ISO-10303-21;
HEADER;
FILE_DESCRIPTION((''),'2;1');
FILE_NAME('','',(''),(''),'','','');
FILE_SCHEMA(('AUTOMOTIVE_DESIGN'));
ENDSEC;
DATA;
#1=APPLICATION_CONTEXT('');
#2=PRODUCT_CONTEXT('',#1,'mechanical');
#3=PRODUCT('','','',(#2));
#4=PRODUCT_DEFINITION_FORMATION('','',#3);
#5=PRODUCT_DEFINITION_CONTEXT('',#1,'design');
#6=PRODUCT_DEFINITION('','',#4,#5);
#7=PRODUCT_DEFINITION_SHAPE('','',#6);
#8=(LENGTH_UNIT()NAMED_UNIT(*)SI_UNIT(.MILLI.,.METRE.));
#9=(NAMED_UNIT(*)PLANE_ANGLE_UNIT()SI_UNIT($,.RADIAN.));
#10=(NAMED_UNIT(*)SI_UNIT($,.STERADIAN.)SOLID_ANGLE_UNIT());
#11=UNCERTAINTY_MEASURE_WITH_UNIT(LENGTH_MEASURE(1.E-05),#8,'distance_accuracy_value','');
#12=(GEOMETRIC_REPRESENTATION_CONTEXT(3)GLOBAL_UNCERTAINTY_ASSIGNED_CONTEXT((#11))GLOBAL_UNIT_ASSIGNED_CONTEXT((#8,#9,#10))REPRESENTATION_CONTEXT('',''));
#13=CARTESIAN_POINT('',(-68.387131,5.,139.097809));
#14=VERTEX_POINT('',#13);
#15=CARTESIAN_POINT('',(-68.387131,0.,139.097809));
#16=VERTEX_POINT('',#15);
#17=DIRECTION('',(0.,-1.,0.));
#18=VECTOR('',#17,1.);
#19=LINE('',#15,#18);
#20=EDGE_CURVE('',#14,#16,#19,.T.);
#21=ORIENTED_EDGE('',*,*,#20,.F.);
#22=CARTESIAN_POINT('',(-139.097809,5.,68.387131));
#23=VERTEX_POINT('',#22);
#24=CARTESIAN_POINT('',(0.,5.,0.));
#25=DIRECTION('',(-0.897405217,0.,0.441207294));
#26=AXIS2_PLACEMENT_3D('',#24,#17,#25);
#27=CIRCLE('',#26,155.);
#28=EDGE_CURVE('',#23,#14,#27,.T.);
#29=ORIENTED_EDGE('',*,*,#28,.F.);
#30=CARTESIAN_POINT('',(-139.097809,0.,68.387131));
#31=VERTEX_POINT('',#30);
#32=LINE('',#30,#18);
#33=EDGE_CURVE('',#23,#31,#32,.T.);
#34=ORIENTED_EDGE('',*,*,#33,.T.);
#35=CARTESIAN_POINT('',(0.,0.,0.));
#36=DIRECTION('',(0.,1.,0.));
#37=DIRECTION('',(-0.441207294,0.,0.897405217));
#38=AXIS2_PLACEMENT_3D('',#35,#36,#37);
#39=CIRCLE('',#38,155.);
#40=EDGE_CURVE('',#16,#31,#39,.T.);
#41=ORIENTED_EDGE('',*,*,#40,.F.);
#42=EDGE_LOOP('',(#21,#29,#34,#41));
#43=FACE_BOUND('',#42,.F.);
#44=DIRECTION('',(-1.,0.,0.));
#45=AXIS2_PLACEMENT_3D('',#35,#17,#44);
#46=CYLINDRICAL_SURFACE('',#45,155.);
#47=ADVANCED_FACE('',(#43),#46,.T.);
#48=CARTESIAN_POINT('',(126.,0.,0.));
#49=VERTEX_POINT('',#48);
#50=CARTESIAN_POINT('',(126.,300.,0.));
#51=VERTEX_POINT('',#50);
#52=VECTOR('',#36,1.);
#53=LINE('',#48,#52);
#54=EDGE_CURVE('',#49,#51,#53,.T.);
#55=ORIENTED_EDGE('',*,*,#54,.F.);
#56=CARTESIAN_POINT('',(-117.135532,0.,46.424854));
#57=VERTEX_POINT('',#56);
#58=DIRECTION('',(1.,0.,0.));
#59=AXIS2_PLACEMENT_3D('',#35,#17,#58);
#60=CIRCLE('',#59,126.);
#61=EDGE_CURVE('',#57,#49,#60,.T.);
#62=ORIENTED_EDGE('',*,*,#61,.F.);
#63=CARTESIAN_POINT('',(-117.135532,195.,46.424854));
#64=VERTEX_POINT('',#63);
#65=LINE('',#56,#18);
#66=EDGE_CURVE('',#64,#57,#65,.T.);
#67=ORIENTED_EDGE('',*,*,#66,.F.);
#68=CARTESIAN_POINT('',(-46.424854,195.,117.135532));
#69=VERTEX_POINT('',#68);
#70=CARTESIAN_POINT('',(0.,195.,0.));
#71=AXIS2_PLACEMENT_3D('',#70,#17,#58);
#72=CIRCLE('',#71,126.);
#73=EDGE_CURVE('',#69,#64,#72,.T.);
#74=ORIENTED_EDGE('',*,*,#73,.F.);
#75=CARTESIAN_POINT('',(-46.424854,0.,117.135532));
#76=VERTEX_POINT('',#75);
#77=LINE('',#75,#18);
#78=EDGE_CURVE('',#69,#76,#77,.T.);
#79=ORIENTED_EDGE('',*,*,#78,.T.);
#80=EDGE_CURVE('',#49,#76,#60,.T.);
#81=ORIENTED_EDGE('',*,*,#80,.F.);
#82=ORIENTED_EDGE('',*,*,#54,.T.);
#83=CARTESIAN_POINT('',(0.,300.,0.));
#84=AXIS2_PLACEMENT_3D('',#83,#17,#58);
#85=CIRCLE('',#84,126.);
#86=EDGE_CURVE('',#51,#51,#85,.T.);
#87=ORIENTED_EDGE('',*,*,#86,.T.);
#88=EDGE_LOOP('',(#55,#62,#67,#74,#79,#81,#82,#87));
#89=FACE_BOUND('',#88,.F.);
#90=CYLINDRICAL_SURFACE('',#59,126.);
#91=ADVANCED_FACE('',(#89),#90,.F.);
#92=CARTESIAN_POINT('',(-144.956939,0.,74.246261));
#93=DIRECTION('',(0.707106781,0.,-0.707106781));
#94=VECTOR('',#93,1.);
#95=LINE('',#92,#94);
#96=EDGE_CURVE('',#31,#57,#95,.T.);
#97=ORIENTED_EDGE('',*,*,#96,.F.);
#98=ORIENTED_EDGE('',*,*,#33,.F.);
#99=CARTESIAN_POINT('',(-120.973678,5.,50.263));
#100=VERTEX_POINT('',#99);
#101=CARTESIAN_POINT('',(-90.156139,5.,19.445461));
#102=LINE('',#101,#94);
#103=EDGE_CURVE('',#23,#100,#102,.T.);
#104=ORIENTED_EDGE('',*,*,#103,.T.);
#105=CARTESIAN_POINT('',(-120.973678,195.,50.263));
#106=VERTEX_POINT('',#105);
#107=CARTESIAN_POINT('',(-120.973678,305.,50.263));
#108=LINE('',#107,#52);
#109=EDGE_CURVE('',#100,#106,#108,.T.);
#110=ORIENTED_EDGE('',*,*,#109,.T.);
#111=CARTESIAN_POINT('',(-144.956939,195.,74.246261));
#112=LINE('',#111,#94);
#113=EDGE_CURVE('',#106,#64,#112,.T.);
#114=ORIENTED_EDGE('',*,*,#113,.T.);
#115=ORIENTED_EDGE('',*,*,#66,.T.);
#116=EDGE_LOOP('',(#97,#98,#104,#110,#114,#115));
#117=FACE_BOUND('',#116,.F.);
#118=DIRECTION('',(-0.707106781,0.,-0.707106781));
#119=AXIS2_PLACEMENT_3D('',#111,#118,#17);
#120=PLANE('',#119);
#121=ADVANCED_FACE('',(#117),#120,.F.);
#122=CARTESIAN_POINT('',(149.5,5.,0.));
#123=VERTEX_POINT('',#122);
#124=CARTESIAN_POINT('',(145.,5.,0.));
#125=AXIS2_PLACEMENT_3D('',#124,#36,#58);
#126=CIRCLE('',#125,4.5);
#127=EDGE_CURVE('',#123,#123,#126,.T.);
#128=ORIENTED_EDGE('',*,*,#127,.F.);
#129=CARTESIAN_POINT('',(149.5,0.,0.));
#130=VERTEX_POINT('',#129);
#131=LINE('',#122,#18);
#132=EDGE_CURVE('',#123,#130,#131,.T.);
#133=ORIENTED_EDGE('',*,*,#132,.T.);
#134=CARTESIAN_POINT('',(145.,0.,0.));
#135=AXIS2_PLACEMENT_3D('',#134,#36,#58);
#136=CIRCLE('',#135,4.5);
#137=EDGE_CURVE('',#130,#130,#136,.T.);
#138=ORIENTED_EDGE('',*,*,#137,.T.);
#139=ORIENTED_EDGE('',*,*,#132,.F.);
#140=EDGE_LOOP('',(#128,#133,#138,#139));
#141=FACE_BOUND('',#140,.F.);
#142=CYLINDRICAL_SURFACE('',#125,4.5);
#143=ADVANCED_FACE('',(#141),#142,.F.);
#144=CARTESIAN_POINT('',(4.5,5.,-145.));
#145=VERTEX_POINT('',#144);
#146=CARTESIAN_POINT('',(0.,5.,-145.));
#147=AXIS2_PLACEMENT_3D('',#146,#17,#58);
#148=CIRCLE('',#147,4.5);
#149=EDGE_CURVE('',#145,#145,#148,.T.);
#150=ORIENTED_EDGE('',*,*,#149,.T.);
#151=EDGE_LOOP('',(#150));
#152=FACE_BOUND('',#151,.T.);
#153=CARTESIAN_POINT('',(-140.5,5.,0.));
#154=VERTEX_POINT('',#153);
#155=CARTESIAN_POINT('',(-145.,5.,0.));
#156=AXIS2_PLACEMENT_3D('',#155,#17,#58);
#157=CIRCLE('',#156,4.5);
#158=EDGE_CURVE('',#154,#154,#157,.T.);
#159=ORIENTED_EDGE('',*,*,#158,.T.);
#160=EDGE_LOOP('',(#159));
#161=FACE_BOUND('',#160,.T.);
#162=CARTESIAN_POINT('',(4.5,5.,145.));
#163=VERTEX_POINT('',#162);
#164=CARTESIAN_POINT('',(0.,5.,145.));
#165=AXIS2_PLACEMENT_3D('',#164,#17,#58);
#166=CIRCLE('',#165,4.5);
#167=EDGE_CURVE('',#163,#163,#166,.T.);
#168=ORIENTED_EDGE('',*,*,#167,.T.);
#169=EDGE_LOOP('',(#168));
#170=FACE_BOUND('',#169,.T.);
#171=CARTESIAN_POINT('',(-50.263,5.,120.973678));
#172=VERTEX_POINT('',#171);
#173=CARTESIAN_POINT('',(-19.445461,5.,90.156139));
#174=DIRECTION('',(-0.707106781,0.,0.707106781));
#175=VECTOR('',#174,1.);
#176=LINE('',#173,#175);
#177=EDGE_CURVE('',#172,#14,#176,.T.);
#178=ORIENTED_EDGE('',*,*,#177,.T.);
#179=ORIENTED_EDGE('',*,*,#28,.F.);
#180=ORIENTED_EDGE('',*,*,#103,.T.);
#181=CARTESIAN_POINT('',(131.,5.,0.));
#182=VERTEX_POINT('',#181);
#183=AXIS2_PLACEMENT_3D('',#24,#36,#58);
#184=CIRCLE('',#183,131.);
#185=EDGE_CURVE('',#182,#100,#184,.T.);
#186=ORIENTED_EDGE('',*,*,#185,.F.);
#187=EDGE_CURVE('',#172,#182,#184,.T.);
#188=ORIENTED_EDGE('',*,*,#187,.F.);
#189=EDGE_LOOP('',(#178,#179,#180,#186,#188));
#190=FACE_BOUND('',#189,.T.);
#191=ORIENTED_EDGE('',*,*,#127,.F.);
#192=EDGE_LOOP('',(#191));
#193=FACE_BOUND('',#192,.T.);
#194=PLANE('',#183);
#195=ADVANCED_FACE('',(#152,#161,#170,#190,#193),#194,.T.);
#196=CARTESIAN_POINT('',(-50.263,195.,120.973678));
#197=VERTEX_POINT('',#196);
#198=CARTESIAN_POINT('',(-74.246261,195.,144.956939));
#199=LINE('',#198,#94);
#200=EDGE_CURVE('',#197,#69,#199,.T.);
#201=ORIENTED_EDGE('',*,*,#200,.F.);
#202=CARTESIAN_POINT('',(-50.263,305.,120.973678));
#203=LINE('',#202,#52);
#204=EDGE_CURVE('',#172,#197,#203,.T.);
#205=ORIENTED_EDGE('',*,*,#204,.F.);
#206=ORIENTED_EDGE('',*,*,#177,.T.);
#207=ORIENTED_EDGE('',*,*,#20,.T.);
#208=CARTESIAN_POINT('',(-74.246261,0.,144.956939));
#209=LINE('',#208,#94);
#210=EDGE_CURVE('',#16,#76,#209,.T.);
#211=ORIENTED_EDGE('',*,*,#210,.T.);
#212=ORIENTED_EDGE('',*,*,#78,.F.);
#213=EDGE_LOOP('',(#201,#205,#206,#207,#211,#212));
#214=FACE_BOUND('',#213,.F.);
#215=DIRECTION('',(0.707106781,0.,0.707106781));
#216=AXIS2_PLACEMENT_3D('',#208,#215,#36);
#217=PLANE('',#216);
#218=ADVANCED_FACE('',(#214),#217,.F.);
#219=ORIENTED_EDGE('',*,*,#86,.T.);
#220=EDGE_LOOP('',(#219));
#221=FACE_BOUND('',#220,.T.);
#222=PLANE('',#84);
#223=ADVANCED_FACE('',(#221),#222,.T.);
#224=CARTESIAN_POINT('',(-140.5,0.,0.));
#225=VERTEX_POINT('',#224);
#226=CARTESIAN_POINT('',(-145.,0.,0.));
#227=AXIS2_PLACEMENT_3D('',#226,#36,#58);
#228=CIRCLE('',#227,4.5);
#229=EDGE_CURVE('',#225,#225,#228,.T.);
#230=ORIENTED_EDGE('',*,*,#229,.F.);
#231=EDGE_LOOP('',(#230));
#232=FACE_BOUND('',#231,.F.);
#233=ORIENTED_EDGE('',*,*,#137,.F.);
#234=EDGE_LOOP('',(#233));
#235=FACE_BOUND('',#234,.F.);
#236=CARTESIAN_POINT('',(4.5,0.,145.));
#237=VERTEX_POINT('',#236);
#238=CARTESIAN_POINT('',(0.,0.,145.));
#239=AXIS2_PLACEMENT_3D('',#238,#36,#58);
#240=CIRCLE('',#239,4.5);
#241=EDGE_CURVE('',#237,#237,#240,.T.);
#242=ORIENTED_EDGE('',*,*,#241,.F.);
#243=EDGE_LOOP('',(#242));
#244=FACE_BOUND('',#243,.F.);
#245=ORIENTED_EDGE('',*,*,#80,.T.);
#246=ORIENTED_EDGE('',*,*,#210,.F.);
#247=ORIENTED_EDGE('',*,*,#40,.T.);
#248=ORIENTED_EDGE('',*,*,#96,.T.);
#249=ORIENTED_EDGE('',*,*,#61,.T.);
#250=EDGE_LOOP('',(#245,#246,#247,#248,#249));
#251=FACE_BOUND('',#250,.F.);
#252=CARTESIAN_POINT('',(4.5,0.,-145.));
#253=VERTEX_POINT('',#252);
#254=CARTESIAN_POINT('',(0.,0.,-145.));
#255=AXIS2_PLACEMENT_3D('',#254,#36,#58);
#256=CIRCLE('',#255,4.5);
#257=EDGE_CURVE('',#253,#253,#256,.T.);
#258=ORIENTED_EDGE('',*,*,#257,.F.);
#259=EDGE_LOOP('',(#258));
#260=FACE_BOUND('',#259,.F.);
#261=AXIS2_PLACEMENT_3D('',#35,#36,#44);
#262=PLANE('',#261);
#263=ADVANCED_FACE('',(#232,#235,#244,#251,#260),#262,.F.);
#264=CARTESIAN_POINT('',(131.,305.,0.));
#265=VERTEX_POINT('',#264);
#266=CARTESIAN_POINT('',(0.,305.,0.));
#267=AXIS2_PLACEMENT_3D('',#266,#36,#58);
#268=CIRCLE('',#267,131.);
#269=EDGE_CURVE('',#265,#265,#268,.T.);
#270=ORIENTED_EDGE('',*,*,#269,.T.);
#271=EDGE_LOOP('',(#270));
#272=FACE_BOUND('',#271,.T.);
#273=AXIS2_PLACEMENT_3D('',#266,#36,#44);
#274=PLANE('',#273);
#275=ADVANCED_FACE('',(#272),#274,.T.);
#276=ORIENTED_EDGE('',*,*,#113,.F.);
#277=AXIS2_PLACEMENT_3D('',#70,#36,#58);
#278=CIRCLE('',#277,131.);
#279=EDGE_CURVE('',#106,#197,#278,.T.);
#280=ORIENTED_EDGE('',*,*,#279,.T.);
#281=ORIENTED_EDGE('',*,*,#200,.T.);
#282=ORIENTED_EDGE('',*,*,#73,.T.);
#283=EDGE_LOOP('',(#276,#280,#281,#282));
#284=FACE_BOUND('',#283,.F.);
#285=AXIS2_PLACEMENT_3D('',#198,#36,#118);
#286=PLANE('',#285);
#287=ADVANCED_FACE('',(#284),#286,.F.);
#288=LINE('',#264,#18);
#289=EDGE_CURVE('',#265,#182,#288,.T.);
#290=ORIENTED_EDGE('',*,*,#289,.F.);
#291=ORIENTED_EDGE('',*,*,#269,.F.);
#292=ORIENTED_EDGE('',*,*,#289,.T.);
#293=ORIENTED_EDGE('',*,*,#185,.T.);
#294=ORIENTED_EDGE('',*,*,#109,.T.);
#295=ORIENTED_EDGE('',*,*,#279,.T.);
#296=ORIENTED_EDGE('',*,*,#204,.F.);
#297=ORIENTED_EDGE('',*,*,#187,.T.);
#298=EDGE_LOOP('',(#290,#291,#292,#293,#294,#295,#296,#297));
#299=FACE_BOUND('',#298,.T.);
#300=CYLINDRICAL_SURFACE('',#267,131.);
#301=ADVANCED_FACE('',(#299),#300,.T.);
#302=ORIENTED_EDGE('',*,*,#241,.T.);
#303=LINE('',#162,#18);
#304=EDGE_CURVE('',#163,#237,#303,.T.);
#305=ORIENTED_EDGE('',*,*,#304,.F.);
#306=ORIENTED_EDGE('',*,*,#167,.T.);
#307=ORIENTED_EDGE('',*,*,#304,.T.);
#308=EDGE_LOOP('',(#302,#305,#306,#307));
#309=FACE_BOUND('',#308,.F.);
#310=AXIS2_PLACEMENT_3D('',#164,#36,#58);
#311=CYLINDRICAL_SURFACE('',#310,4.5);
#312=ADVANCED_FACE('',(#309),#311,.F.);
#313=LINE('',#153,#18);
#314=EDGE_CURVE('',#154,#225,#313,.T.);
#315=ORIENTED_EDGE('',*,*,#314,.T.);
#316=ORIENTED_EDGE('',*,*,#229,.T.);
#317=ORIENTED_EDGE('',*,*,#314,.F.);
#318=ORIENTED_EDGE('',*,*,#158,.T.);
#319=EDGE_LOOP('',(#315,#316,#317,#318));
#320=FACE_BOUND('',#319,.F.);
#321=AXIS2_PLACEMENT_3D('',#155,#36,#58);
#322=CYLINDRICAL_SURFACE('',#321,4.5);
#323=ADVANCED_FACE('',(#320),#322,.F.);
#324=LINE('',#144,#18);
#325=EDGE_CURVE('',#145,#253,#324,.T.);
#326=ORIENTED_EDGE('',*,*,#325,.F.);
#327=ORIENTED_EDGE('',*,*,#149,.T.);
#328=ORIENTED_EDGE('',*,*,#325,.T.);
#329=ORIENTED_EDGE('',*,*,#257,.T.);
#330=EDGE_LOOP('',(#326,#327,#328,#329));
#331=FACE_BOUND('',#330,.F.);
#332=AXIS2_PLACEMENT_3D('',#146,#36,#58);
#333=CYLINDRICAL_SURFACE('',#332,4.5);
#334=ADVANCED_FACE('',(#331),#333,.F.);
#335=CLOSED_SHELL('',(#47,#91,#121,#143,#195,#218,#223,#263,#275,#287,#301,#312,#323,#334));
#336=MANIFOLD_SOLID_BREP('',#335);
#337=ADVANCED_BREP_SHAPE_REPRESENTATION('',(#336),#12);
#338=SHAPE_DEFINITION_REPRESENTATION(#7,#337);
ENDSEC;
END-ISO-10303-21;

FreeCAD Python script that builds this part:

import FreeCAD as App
import Part
import Sketcher

doc = App.newDocument("Part")
body = doc.addObject("PartDesign::Body", "Body")

sketch1 = body.newObject("Sketcher::SketchObject", "Sketch")
sketch1.AttachmentSupport = (doc.getObject("XZ_Plane"), [""])
sketch1.MapMode = "FlatFace"
sketch1.addGeometry(Part.Circle(App.Vector(0, 0, 0), App.Vector(0, 0, 1), 155), False)
sketch1.addConstraint([
    Sketcher.Constraint("Coincident", 0, 3, -1, 1),
    Sketcher.Constraint("Diameter", 0, 310.0),
])
pad1 = body.newObject("PartDesign::Pad", "Pad")
pad1.Profile = sketch1
pad1.Length = 305
pad1.Reversed = True

sketch2 = body.newObject("Sketcher::SketchObject", "Sketch001")
sketch2.AttachmentSupport = (doc.getObject("XZ_Plane"), [""])
sketch2.MapMode = "FlatFace"
sketch2.AttachmentOffset = App.Placement(App.Vector(0, 0, -305), App.Rotation())
sketch2.addGeometry([
    Part.Circle(App.Vector(0, 0, 0), App.Vector(0, 0, 1), 155),
    Part.Circle(App.Vector(0, 0, 0), App.Vector(0, 0, 1), 131),
], False)
sketch2.addConstraint([
    Sketcher.Constraint("Coincident", 0, 3, -1, 1),
    Sketcher.Constraint("Coincident", 1, 3, -1, 1),
    Sketcher.Constraint("Diameter", 0, 310.0),
    Sketcher.Constraint("Diameter", 1, 262.0),
])
pocket1 = body.newObject("PartDesign::Pocket", "Pocket")
pocket1.Profile = sketch2
pocket1.Length = 300
pocket1.Reversed = True

sketch3 = body.newObject("Sketcher::SketchObject", "Sketch002")
sketch3.AttachmentSupport = (doc.getObject("XZ_Plane"), [""])
sketch3.MapMode = "FlatFace"
sketch3.addGeometry(Part.Circle(App.Vector(0, 0, 0), App.Vector(0, 0, 1), 126), False)
sketch3.addConstraint([
    Sketcher.Constraint("Coincident", 0, 3, -1, 1),
    Sketcher.Constraint("Diameter", 0, 252.0),
])
pocket2 = body.newObject("PartDesign::Pocket", "Pocket001")
pocket2.Profile = sketch3
pocket2.Length = 300

sketch4 = body.newObject("Sketcher::SketchObject", "Sketch003")
sketch4.AttachmentSupport = (doc.getObject("XZ_Plane"), [""])
sketch4.MapMode = "FlatFace"
sketch4.AttachmentOffset = App.Placement(App.Vector(0, 0, -5), App.Rotation())
sketch4.addGeometry([
    Part.Circle(App.Vector(0, -145, 0), App.Vector(0, 0, 1), 4.5),
    Part.Circle(App.Vector(-145, 0, 0), App.Vector(0, 0, 1), 4.5),
    Part.Circle(App.Vector(0, 145, 0), App.Vector(0, 0, 1), 4.5),
    Part.Circle(App.Vector(145, 0, 0), App.Vector(0, 0, 1), 4.5),
], False)
sketch4.addConstraint([
    Sketcher.Constraint("Equal", 0, 1),
    Sketcher.Constraint("Equal", 1, 2),
    Sketcher.Constraint("Equal", 2, 3),
    Sketcher.Constraint("Symmetric", 0, 3, 2, 3, -1, 1),
    Sketcher.Constraint("Symmetric", 1, 3, 3, 3, -1, 1),
    Sketcher.Constraint("PointOnObject", 0, 3, -2),
    Sketcher.Constraint("PointOnObject", 1, 3, -1),
    Sketcher.Constraint("Diameter", 0, 9.0),
    Sketcher.Constraint("DistanceY", 0, 3, -1, 1, 145.0),
    Sketcher.Constraint("DistanceX", 1, 3, -1, 1, 145.0),
])
pocket3 = body.newObject("PartDesign::Pocket", "Pocket002")
pocket3.Profile = sketch4
pocket3.Type = "ThroughAll"
pocket3.Reversed = True

sketch5 = body.newObject("Sketcher::SketchObject", "Sketch004")
sketch5.Placement = App.Placement(App.Vector(-109.6016, 0, 109.6016), App.Rotation(App.Vector(0, 1, 0), App.Vector(0.707106781, 0, 0.707106781), App.Vector(0.707106781, 0, -0.707106781), "ZXY"))
sketch5.addGeometry([
    Part.LineSegment(App.Vector(0, -50, 0), App.Vector(195, -50, 0)),
    Part.LineSegment(App.Vector(195, -50, 0), App.Vector(195, 50, 0)),
    Part.LineSegment(App.Vector(195, 50, 0), App.Vector(0, 50, 0)),
    Part.LineSegment(App.Vector(0, 50, 0), App.Vector(0, -50, 0)),
], False)
sketch5.addConstraint([
    Sketcher.Constraint("Coincident", 0, 2, 1, 1),
    Sketcher.Constraint("Coincident", 1, 2, 2, 1),
    Sketcher.Constraint("Coincident", 2, 2, 3, 1),
    Sketcher.Constraint("Coincident", 3, 2, 0, 1),
    Sketcher.Constraint("Horizontal", 0),
    Sketcher.Constraint("Vertical", 1),
    Sketcher.Constraint("Horizontal", 2),
    Sketcher.Constraint("Vertical", 3),
    Sketcher.Constraint("Symmetric", 2, 2, 3, 2, -1, 1),
    Sketcher.Constraint("DistanceX", 0, 1, 0, 2, 195.0),
    Sketcher.Constraint("DistanceY", 1, 1, 1, 2, 100.0),
])
pocket4 = body.newObject("PartDesign::Pocket", "Pocket003")
pocket4.Profile = sketch5
pocket4.Length = 39.3454
pocket4.Reversed = True

doc.recompute()
